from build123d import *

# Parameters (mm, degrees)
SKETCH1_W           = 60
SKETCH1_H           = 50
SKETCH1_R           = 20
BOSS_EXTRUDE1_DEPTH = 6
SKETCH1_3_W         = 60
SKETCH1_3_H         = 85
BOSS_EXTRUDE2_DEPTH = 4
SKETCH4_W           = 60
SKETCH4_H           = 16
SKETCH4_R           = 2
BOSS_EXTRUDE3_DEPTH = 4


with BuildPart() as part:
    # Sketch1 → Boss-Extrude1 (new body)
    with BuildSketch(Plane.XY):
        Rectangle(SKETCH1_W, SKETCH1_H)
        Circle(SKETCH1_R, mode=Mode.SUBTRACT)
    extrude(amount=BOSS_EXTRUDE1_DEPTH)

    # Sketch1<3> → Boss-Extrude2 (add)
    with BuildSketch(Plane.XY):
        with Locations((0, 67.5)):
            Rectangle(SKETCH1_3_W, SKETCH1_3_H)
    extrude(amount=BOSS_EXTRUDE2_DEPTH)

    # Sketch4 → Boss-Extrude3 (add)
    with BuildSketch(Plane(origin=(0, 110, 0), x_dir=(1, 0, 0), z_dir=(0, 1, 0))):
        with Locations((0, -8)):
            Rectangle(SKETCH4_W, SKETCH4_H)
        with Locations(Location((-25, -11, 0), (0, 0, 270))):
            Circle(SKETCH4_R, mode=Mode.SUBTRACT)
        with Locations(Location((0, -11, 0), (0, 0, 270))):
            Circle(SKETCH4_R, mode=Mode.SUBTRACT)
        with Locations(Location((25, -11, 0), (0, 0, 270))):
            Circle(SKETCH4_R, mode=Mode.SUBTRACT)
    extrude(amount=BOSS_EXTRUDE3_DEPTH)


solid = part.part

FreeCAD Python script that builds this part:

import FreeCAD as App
import Part
import Sketcher

V = App.Vector
Q = App.Units.Quantity


def add_polygon(sketch, points):
    """Adds a closed chain of lines whose ends are joined by coincident constraints."""
    first, n = sketch.GeometryCount, len(points)
    for a, b in zip(points, points[1:] + points[:1]):
        sketch.addGeometry(Part.LineSegment(App.Vector(*a, 0), App.Vector(*b, 0)), False)
    for i in range(n):
        sketch.addConstraint(Sketcher.Constraint("Coincident", first + i, 2, first + (i + 1) % n, 1))

doc = App.newDocument("Part")
body = doc.addObject("PartDesign::Body", "Body")

sketch1 = doc.addObject("Sketcher::SketchObject", "Sketch")
body.addObject(sketch1)
sketch1.AttachmentSupport = (doc.XY_Plane, [""])
sketch1.MapMode = "FlatFace"
add_polygon(sketch1, [(-30, 25), (-30, -25), (30, -25), (30, 25)])
sketch1.addGeometry(Part.Circle(V(0, 0, 0), V(0, 0, 1), 20), False)
sketch1.addConstraint([
    Sketcher.Constraint("Vertical", 0),
    Sketcher.Constraint("Horizontal", 1),
    Sketcher.Constraint("Vertical", 2),
    Sketcher.Constraint("Horizontal", 3),
    Sketcher.Constraint("Coincident", 4, 3, -1, 1),
    Sketcher.Constraint("Symmetric", 0, 2, 2, 2, -1, 1),
    Sketcher.Constraint("Diameter", 4, Q("40 mm")),
    Sketcher.Constraint("DistanceX", 1, 1, 1, 2, Q("60 mm")),
    Sketcher.Constraint("DistanceY", 0, 2, 0, 1, Q("50 mm")),
])
pad1 = doc.addObject("PartDesign::Pad", "Pad")
body.addObject(pad1)
pad1.Profile = sketch1
pad1.Length = 6

sketch2 = doc.addObject("Sketcher::SketchObject", "Sketch001")
body.addObject(sketch2)
sketch2.AttachmentSupport = (doc.XY_Plane, [""])
sketch2.MapMode = "FlatFace"
add_polygon(sketch2, [(-30, 110), (-30, 25), (30, 25), (30, 110)])
sketch2.addConstraint([
    Sketcher.Constraint("Vertical", 0),
    Sketcher.Constraint("Horizontal", 1),
    Sketcher.Constraint("Vertical", 2),
    Sketcher.Constraint("Horizontal", 3),
    Sketcher.Constraint("DistanceX", 1, 1, 1, 2, Q("60 mm")),
    Sketcher.Constraint("DistanceY", 0, 2, 0, 1, Q("85 mm")),
    Sketcher.Constraint("DistanceX", 0, 2, -1, 1, Q("30 mm")),
    Sketcher.Constraint("DistanceY", -1, 1, 0, 2, Q("25 mm")),
])
pad2 = doc.addObject("PartDesign::Pad", "Pad001")
body.addObject(pad2)
pad2.Profile = sketch2
pad2.Length = 4

sketch3 = doc.addObject("Sketcher::SketchObject", "Sketch002")
body.addObject(sketch3)
sketch3.AttachmentSupport = (doc.XZ_Plane, [""])
sketch3.MapMode = "FlatFace"
sketch3.AttachmentOffset = App.Placement(V(0, 0, -110), App.Rotation())
add_polygon(sketch3, [(-30, 0), (-30, 16), (30, 16), (30, 0)])
sketch3.addGeometry(Part.Circle(V(-25, 11, 0), V(0, 0, 1), 2), False)
sketch3.addGeometry(Part.Circle(V(0, 11, 0), V(0, 0, 1), 2), False)
sketch3.addGeometry(Part.Circle(V(25, 11, 0), V(0, 0, 1), 2), False)
sketch3.addConstraint([
    Sketcher.Constraint("Vertical", 0),
    Sketcher.Constraint("Horizontal", 1),
    Sketcher.Constraint("Vertical", 2),
    Sketcher.Constraint("Horizontal", 3),
    Sketcher.Constraint("Equal", 4, 5),
    Sketcher.Constraint("Equal", 5, 6),
    Sketcher.Constraint("Symmetric", 2, 2, 3, 2, -1, 1),
    Sketcher.Constraint("Symmetric", 4, 3, 6, 3, -2),
    Sketcher.Constraint("PointOnObject", 5, 3, -2),
    Sketcher.Constraint("Horizontal", 4, 3, 5, 3),
    Sketcher.Constraint("Diameter", 4, Q("4 mm")),
    Sketcher.Constraint("DistanceX", 1, 1, 1, 2, Q("60 mm")),
    Sketcher.Constraint("DistanceY", 0, 1, 0, 2, Q("16 mm")),
    Sketcher.Constraint("DistanceX", 4, 3, -1, 1, Q("25 mm")),
    Sketcher.Constraint("DistanceY", -1, 1, 4, 3, Q("11 mm")),
])
pad3 = doc.addObject("PartDesign::Pad", "Pad002")
body.addObject(pad3)
pad3.Profile = sketch3
pad3.Length = 4
pad3.Reversed = True

doc.recompute()
